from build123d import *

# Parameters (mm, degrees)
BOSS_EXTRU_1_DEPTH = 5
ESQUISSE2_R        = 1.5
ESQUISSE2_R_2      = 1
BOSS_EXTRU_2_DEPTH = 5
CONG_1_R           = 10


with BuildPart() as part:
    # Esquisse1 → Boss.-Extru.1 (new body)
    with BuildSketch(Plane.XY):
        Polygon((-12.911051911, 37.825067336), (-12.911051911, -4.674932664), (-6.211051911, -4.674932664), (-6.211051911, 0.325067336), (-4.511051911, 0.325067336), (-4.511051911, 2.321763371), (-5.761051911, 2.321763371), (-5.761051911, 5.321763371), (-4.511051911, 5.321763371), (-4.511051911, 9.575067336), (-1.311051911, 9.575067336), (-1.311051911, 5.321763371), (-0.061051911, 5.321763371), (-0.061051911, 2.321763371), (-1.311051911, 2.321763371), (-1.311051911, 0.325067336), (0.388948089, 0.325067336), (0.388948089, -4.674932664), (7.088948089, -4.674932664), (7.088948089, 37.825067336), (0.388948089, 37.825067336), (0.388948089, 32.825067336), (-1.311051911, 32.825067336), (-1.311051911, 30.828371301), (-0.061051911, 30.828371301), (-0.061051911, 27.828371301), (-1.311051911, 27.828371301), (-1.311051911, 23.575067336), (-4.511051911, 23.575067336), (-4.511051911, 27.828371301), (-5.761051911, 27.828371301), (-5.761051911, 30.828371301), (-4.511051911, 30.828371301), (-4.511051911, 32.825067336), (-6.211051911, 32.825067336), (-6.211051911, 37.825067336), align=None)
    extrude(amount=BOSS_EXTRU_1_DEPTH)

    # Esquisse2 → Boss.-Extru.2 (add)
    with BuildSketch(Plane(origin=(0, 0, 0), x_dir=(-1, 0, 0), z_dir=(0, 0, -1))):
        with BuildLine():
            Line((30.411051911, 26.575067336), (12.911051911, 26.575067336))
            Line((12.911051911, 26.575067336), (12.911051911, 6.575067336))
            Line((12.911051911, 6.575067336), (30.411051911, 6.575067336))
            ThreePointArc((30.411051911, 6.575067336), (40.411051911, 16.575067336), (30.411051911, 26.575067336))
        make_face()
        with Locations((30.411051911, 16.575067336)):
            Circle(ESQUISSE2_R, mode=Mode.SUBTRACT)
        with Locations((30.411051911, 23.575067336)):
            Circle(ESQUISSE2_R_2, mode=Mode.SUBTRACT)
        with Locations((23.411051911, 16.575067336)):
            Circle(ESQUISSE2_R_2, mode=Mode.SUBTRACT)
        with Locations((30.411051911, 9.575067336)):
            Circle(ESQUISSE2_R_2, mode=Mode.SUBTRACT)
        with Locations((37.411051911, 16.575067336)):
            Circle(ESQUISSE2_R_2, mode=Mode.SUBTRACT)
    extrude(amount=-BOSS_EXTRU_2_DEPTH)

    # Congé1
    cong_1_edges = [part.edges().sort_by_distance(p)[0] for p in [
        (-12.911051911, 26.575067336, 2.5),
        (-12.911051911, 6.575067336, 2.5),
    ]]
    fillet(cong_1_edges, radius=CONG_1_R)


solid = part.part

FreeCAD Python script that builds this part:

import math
import FreeCAD as App
import Part
import Sketcher
from FreeCAD import Vector


def edges_at(feature, points):
    """Names of the edges that pass closest to the given points."""
    edges = feature.Shape.Edges
    near = lambda p: min(range(len(edges)), key=lambda i: edges[i].distToShape(Part.Vertex(*p))[0])
    return sorted({f"Edge{near(p) + 1}" for p in points})


def add_polygon(sketch, points):
    """Adds a closed chain of lines whose ends are joined by coincident constraints."""
    first, n = sketch.GeometryCount, len(points)
    for a, b in zip(points, points[1:] + points[:1]):
        sketch.addGeometry(Part.LineSegment(App.Vector(*a, 0), App.Vector(*b, 0)), False)
    for i in range(n):
        sketch.addConstraint(Sketcher.Constraint("Coincident", first + i, 2, first + (i + 1) % n, 1))

doc = App.newDocument("Part")
params = doc.addObject("Spreadsheet::Sheet", "Params")
for row, (alias, value) in enumerate([
    ("sketch1_height", "5 mm"),
    ("sketch1_height2", "3 mm"),
    ("sketch1_width", "6.7 mm"),
    ("sketch1_width2", "1.7 mm"),
    ("sketch1_width3", "3.2 mm"),
    ("pad1_length", "5 mm"),
    ("sketch2_diameter", "2 mm"),
    ("sketch2_diameter2", "3 mm"),
    ("sketch2_radius", "10 mm"),
    ("sketch2_width", "17.5 mm"),
    ("pad2_length", "5 mm"),
    ("fillet_radius", "10 mm"),
], start=1):
    params.set(f"A{row}", alias)
    params.set(f"B{row}", "=" + value)
    params.setAlias(f"B{row}", alias)

body = doc.addObject("PartDesign::Body", "Body")

sketch1 = body.newObject("Sketcher::SketchObject", "Sketch")
sketch1.AttachmentSupport = (doc.getObject("XY_Plane"), [""])
sketch1.MapMode = "FlatFace"
add_polygon(sketch1, [(-12.9, 37.8), (-12.9, -4.7), (-6.2, -4.7), (-6.2, 0.3), (-4.5, 0.3), (-4.5, 2.3), (-5.8, 2.3), (-5.8, 5.3), (-4.5, 5.3), (-4.5, 9.6), (-1.3, 9.6), (-1.3, 5.3), (-0.1, 5.3), (-0.1, 2.3), (-1.3, 2.3), (-1.3, 0.3), (0.4, 0.3), (0.4, -4.7), (7.1, -4.7), (7.1, 37.8), (0.4, 37.8), (0.4, 32.8), (-1.3, 32.8), (-1.3, 30.8), (-0.1, 30.8), (-0.1, 27.8), (-1.3, 27.8), (-1.3, 23.6), (-4.5, 23.6), (-4.5, 27.8), (-5.8, 27.8), (-5.8, 30.8), (-4.5, 30.8), (-4.5, 32.8), (-6.2, 32.8), (-6.2, 37.8)])
sketch1.addConstraint([
    Sketcher.Constraint("Vertical", 0),
    Sketcher.Constraint("Horizontal", 1),
    Sketcher.Constraint("Vertical", 2),
    Sketcher.Constraint("Horizontal", 3),
    Sketcher.Constraint("Vertical", 4),
    Sketcher.Constraint("Horizontal", 5),
    Sketcher.Constraint("Vertical", 6),
    Sketcher.Constraint("Horizontal", 7),
    Sketcher.Constraint("Vertical", 8),
    Sketcher.Constraint("Horizontal", 9),
    Sketcher.Constraint("Vertical", 10),
    Sketcher.Constraint("Horizontal", 11),
    Sketcher.Constraint("Vertical", 12),
    Sketcher.Constraint("Horizontal", 13),
    Sketcher.Constraint("Vertical", 14),
    Sketcher.Constraint("Horizontal", 15),
    Sketcher.Constraint("Vertical", 16),
    Sketcher.Constraint("Horizontal", 17),
    Sketcher.Constraint("Vertical", 18),
    Sketcher.Constraint("Horizontal", 19),
    Sketcher.Constraint("Vertical", 20),
    Sketcher.Constraint("Horizontal", 21),
    Sketcher.Constraint("Vertical", 22),
    Sketcher.Constraint("Horizontal", 23),
    Sketcher.Constraint("Vertical", 24),
    Sketcher.Constraint("Horizontal", 25),
    Sketcher.Constraint("Vertical", 26),
    Sketcher.Constraint("Horizontal", 27),
    Sketcher.Constraint("Vertical", 28),
    Sketcher.Constraint("Horizontal", 29),
    Sketcher.Constraint("Vertical", 30),
    Sketcher.Constraint("Horizontal", 31),
    Sketcher.Constraint("Vertical", 32),
    Sketcher.Constraint("Horizontal", 33),
    Sketcher.Constraint("Vertical", 34),
    Sketcher.Constraint("Horizontal", 35),
    Sketcher.Constraint("Horizontal", 7, 2, 10, 2),
    Sketcher.Constraint("Horizontal", 5, 2, 12, 2),
    Sketcher.Constraint("Horizontal", 3, 2, 14, 2),
    Sketcher.Constraint("Horizontal", 1, 2, 16, 2),
    Sketcher.Constraint("Horizontal", 25, 2, 28, 2),
    Sketcher.Constraint("Horizontal", 23, 2, 30, 2),
    Sketcher.Constraint("Horizontal", 21, 2, 32, 2),
    Sketcher.Constraint("Horizontal", 19, 2, 34, 2),
    Sketcher.Constraint("Vertical", 4, 2, 7, 2),
    Sketcher.Constraint("Vertical", 10, 2, 13, 2),
    Sketcher.Constraint("Vertical", 16, 2, 19, 2),
    Sketcher.Constraint("Vertical", 14, 2, 21, 2),
    Sketcher.Constraint("Vertical", 12, 2, 23, 2),
    Sketcher.Constraint("Vertical", 22, 2, 25, 2),
    Sketcher.Constraint("Vertical", 8, 2, 27, 2),
    Sketcher.Constraint("Vertical", 6, 2, 29, 2),
    Sketcher.Constraint("Vertical", 28, 2, 31, 2),
    Sketcher.Constraint("Vertical", 2, 2, 33, 2),
    Sketcher.Constraint("Equal", 7, 11),
    Sketcher.Constraint("Equal", 3, 15),
    Sketcher.Constraint("Equal", 1, 17),
    Sketcher.Constraint("Equal", 16, 20),
    Sketcher.Constraint("Equal", 14, 22),
    Sketcher.Constraint("Equal", 12, 24),
    Sketcher.Constraint("Equal", 10, 26),
    Sketcher.Constraint("DistanceY", 2, 1, 2, 2, 5.0),
    Sketcher.Constraint("DistanceY", 6, 1, 6, 2, 3.0),
    Sketcher.Constraint("DistanceX", 1, 1, 1, 2, 6.7),
    Sketcher.Constraint("DistanceX", 3, 1, 3, 2, 1.7),
    Sketcher.Constraint("DistanceX", 9, 1, 9, 2, 3.2),
    Sketcher.Constraint("DistanceY", 0, 2, 0, 1, 42.5),
    Sketcher.Constraint("DistanceX", 5, 2, 5, 1, 1.25),
    Sketcher.Constraint("DistanceY", 3, 2, 8, 2, 9.25),
    Sketcher.Constraint("DistanceY", 4, 1, 4, 2, 1.996696),
    Sketcher.Constraint("DistanceX", 0, 2, -1, 1, 12.911052),
    Sketcher.Constraint("DistanceY", -1, 1, 22, 2, 30.828371),
])
sketch1.setExpression("Constraints[97]", "Params.sketch1_height")
sketch1.setExpression("Constraints[98]", "Params.sketch1_height2")
sketch1.setExpression("Constraints[99]", "Params.sketch1_width")
sketch1.setExpression("Constraints[100]", "Params.sketch1_width2")
sketch1.setExpression("Constraints[101]", "Params.sketch1_width3")
pad1 = body.newObject("PartDesign::Pad", "Pad")
pad1.Profile = sketch1
pad1.setExpression("Length", "Params.pad1_length")

sketch2 = body.newObject("Sketcher::SketchObject", "Sketch001")
sketch2.AttachmentSupport = (doc.getObject("XY_Plane"), [""])
sketch2.MapMode = "FlatFace"
sketch2.addGeometry([
    Part.LineSegment(Vector(-30.4, 26.6, 0), Vector(-12.9, 26.6, 0)),
    Part.LineSegment(Vector(-12.9, 26.6, 0), Vector(-12.9, 6.6, 0)),
    Part.LineSegment(Vector(-12.9, 6.6, 0), Vector(-30.4, 6.6, 0)),
    Part.ArcOfCircle(Part.Circle(Vector(-30.4, 16.6, 0), Vector(0, 0, 1), 10), math.radians(90), math.radians(270)),
    Part.Circle(Vector(-30.4, 9.6, 0), Vector(0, 0, 1), 1),
    Part.Circle(Vector(-23.4, 16.6, 0), Vector(0, 0, 1), 1),
    Part.Circle(Vector(-30.4, 16.6, 0), Vector(0, 0, 1), 1.5),
    Part.Circle(Vector(-37.4, 16.6, 0), Vector(0, 0, 1), 1),
    Part.Circle(Vector(-30.4, 23.6, 0), Vector(0, 0, 1), 1),
], False)
sketch2.addConstraint([
    Sketcher.Constraint("Coincident", 0, 2, 1, 1),
    Sketcher.Constraint("Coincident", 1, 2, 2, 1),
    Sketcher.Constraint("Tangent", 2, 2, 3, 2),
    Sketcher.Constraint("Tangent", 3, 1, 0, 1),
    Sketcher.Constraint("Horizontal", 0),
    Sketcher.Constraint("Vertical", 1),
    Sketcher.Constraint("Horizontal", 2),
    Sketcher.Constraint("Coincident", 6, 3, 3, 3),
    Sketcher.Constraint("Equal", 4, 5),
    Sketcher.Constraint("Equal", 5, 7),
    Sketcher.Constraint("Equal", 7, 8),
    Sketcher.Constraint("Horizontal", 3, 3, 5, 3),
    Sketcher.Constraint("Horizontal", 6, 3, 7, 3),
    Sketcher.Constraint("Vertical", 3, 3, 4, 3),
    Sketcher.Constraint("Vertical", 6, 3, 8, 3),
    Sketcher.Constraint("Diameter", 4, 2.0),
    Sketcher.Constraint("Diameter", 6, 3.0),
    Sketcher.Constraint("Radius", 3, 10.0),
    Sketcher.Constraint("DistanceX", 0, 1, 0, 2, 17.5),
    Sketcher.Constraint("DistanceY", 4, 3, 3, 3, 7.0),
    Sketcher.Constraint("DistanceX", 3, 3, 5, 3, 7.0),
    Sketcher.Constraint("DistanceX", 7, 3, 3, 3, 7.0),
    Sketcher.Constraint("DistanceY", 3, 3, 8, 3, 7.0),
    Sketcher.Constraint("DistanceX", 3, 3, -1, 1, 30.411052),
    Sketcher.Constraint("DistanceY", -1, 1, 3, 3, 16.575067),
])
sketch2.setExpression("Constraints[15]", "Params.sketch2_diameter")
sketch2.setExpression("Constraints[16]", "Params.sketch2_diameter2")
sketch2.setExpression("Constraints[17]", "Params.sketch2_radius")
sketch2.setExpression("Constraints[18]", "Params.sketch2_width")
pad2 = body.newObject("PartDesign::Pad", "Pad001")
pad2.Profile = sketch2
pad2.setExpression("Length", "Params.pad2_length")
doc.recompute()

fillet = body.newObject("PartDesign::Fillet", "Fillet")
fillet.Base = (pad2, edges_at(pad2, [(-12.911, 26.575, 2.5), (-12.911, 6.575, 2.5)]))
fillet.setExpression("Radius", "Params.fillet_radius")

doc.recompute()
